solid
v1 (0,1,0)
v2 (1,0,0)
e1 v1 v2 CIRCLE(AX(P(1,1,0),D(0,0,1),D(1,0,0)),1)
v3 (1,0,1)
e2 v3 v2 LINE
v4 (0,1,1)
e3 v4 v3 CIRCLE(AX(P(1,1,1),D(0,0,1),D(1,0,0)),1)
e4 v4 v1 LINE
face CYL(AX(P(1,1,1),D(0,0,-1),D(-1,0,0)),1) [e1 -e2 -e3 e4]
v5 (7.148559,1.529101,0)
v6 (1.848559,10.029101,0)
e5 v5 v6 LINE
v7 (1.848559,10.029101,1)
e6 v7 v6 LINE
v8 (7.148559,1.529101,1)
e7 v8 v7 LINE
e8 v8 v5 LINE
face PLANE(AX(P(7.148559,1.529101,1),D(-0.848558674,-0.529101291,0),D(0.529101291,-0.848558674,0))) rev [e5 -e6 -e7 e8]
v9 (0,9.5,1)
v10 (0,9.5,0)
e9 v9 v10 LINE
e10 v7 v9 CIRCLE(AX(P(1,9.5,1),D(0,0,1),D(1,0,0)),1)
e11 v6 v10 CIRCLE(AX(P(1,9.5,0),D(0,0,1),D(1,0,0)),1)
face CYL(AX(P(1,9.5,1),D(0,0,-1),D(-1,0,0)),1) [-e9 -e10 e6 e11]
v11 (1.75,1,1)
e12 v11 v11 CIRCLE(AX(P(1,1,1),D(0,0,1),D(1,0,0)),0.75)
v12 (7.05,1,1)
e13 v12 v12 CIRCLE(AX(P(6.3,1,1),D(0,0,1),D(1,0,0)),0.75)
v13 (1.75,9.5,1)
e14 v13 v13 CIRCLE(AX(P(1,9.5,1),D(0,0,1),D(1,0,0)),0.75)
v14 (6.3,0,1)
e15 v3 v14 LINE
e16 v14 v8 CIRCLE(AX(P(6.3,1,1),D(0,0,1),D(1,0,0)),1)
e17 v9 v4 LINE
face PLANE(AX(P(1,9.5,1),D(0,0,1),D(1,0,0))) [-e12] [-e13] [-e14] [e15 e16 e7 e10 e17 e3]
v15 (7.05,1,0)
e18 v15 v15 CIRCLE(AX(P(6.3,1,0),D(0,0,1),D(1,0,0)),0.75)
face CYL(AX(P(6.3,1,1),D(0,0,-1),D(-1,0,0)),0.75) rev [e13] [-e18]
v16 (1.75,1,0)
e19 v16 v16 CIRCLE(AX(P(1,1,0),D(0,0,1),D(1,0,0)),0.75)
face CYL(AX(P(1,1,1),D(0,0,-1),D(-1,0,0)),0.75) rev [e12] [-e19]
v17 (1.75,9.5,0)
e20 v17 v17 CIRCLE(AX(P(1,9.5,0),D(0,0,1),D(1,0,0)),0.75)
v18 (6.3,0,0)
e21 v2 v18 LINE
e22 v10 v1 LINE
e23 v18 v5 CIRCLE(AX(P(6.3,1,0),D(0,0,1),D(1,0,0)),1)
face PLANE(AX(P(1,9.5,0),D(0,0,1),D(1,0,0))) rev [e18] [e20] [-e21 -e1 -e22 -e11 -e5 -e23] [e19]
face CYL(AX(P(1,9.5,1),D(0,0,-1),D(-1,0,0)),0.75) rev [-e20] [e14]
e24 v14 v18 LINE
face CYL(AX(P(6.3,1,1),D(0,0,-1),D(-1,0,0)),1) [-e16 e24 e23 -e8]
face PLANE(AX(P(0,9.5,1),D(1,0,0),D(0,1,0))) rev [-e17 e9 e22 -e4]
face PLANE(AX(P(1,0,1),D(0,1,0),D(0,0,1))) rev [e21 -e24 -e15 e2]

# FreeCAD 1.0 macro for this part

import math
import FreeCAD as App
import Part
import Sketcher
from FreeCAD import Vector
Q = App.Units.Quantity

doc = App.newDocument("Part")
body = doc.addObject("PartDesign::Body", "Body")

sketch1 = doc.addObject("Sketcher::SketchObject", "Sketch")
body.addObject(sketch1)
sketch1.AttachmentSupport = (doc.XY_Plane, [""])
sketch1.MapMode = "FlatFace"
sketch1.addGeometry([
    Part.LineSegment(Vector(0, 9.5, 0), Vector(0, 1, 0)),
    Part.ArcOfCircle(Part.Circle(Vector(1, 1, 0), Vector(0, 0, 1), 1), math.radians(-180), math.radians(-90)),
    Part.LineSegment(Vector(1, 0, 0), Vector(6.3, 0, 0)),
    Part.ArcOfCircle(Part.Circle(Vector(6.3, 1, 0), Vector(0, 0, 1), 1), math.radians(-90), math.radians(32)),
    Part.LineSegment(Vector(7.1, 1.5, 0), Vector(1.8, 10, 0)),
    Part.ArcOfCircle(Part.Circle(Vector(1, 9.5, 0), Vector(0, 0, 1), 1), math.radians(32), math.radians(180)),
    Part.Circle(Vector(1, 1, 0), Vector(0, 0, 1), 0.8),
    Part.Circle(Vector(6.3, 1, 0), Vector(0, 0, 1), 0.8),
    Part.Circle(Vector(1, 9.5, 0), Vector(0, 0, 1), 0.8),
], False)
sketch1.addConstraint([
    Sketcher.Constraint("Tangent", 0, 2, 1, 1),
    Sketcher.Constraint("Tangent", 1, 2, 2, 1),
    Sketcher.Constraint("Tangent", 2, 2, 3, 1),
    Sketcher.Constraint("Tangent", 3, 2, 4, 1),
    Sketcher.Constraint("Tangent", 4, 2, 5, 1),
    Sketcher.Constraint("Tangent", 5, 2, 0, 1),
    Sketcher.Constraint("Vertical", 0),
    Sketcher.Constraint("Horizontal", 2),
    Sketcher.Constraint("Coincident", 6, 3, 1, 3),
    Sketcher.Constraint("Coincident", 7, 3, 3, 3),
    Sketcher.Constraint("Coincident", 8, 3, 5, 3),
    Sketcher.Constraint("Equal", 1, 3),
    Sketcher.Constraint("Equal", 3, 5),
    Sketcher.Constraint("Equal", 6, 7),
    Sketcher.Constraint("Equal", 7, 8),
    Sketcher.Constraint("PointOnObject", 0, 2, -2),
    Sketcher.Constraint("PointOnObject", 1, 2, -1),
    Sketcher.Constraint("Radius", 1, Q("1 mm")),
    Sketcher.Constraint("Diameter", 6, Q("1.5 mm")),
    Sketcher.Constraint("DistanceX", 2, 1, 2, 2, Q("5.3 mm")),
    Sketcher.Constraint("DistanceY", 0, 2, 0, 1, Q("8.5 mm")),
])
pad1 = doc.addObject("PartDesign::Pad", "Pad")
body.addObject(pad1)
pad1.Profile = sketch1
pad1.Length = 1

doc.recompute()
